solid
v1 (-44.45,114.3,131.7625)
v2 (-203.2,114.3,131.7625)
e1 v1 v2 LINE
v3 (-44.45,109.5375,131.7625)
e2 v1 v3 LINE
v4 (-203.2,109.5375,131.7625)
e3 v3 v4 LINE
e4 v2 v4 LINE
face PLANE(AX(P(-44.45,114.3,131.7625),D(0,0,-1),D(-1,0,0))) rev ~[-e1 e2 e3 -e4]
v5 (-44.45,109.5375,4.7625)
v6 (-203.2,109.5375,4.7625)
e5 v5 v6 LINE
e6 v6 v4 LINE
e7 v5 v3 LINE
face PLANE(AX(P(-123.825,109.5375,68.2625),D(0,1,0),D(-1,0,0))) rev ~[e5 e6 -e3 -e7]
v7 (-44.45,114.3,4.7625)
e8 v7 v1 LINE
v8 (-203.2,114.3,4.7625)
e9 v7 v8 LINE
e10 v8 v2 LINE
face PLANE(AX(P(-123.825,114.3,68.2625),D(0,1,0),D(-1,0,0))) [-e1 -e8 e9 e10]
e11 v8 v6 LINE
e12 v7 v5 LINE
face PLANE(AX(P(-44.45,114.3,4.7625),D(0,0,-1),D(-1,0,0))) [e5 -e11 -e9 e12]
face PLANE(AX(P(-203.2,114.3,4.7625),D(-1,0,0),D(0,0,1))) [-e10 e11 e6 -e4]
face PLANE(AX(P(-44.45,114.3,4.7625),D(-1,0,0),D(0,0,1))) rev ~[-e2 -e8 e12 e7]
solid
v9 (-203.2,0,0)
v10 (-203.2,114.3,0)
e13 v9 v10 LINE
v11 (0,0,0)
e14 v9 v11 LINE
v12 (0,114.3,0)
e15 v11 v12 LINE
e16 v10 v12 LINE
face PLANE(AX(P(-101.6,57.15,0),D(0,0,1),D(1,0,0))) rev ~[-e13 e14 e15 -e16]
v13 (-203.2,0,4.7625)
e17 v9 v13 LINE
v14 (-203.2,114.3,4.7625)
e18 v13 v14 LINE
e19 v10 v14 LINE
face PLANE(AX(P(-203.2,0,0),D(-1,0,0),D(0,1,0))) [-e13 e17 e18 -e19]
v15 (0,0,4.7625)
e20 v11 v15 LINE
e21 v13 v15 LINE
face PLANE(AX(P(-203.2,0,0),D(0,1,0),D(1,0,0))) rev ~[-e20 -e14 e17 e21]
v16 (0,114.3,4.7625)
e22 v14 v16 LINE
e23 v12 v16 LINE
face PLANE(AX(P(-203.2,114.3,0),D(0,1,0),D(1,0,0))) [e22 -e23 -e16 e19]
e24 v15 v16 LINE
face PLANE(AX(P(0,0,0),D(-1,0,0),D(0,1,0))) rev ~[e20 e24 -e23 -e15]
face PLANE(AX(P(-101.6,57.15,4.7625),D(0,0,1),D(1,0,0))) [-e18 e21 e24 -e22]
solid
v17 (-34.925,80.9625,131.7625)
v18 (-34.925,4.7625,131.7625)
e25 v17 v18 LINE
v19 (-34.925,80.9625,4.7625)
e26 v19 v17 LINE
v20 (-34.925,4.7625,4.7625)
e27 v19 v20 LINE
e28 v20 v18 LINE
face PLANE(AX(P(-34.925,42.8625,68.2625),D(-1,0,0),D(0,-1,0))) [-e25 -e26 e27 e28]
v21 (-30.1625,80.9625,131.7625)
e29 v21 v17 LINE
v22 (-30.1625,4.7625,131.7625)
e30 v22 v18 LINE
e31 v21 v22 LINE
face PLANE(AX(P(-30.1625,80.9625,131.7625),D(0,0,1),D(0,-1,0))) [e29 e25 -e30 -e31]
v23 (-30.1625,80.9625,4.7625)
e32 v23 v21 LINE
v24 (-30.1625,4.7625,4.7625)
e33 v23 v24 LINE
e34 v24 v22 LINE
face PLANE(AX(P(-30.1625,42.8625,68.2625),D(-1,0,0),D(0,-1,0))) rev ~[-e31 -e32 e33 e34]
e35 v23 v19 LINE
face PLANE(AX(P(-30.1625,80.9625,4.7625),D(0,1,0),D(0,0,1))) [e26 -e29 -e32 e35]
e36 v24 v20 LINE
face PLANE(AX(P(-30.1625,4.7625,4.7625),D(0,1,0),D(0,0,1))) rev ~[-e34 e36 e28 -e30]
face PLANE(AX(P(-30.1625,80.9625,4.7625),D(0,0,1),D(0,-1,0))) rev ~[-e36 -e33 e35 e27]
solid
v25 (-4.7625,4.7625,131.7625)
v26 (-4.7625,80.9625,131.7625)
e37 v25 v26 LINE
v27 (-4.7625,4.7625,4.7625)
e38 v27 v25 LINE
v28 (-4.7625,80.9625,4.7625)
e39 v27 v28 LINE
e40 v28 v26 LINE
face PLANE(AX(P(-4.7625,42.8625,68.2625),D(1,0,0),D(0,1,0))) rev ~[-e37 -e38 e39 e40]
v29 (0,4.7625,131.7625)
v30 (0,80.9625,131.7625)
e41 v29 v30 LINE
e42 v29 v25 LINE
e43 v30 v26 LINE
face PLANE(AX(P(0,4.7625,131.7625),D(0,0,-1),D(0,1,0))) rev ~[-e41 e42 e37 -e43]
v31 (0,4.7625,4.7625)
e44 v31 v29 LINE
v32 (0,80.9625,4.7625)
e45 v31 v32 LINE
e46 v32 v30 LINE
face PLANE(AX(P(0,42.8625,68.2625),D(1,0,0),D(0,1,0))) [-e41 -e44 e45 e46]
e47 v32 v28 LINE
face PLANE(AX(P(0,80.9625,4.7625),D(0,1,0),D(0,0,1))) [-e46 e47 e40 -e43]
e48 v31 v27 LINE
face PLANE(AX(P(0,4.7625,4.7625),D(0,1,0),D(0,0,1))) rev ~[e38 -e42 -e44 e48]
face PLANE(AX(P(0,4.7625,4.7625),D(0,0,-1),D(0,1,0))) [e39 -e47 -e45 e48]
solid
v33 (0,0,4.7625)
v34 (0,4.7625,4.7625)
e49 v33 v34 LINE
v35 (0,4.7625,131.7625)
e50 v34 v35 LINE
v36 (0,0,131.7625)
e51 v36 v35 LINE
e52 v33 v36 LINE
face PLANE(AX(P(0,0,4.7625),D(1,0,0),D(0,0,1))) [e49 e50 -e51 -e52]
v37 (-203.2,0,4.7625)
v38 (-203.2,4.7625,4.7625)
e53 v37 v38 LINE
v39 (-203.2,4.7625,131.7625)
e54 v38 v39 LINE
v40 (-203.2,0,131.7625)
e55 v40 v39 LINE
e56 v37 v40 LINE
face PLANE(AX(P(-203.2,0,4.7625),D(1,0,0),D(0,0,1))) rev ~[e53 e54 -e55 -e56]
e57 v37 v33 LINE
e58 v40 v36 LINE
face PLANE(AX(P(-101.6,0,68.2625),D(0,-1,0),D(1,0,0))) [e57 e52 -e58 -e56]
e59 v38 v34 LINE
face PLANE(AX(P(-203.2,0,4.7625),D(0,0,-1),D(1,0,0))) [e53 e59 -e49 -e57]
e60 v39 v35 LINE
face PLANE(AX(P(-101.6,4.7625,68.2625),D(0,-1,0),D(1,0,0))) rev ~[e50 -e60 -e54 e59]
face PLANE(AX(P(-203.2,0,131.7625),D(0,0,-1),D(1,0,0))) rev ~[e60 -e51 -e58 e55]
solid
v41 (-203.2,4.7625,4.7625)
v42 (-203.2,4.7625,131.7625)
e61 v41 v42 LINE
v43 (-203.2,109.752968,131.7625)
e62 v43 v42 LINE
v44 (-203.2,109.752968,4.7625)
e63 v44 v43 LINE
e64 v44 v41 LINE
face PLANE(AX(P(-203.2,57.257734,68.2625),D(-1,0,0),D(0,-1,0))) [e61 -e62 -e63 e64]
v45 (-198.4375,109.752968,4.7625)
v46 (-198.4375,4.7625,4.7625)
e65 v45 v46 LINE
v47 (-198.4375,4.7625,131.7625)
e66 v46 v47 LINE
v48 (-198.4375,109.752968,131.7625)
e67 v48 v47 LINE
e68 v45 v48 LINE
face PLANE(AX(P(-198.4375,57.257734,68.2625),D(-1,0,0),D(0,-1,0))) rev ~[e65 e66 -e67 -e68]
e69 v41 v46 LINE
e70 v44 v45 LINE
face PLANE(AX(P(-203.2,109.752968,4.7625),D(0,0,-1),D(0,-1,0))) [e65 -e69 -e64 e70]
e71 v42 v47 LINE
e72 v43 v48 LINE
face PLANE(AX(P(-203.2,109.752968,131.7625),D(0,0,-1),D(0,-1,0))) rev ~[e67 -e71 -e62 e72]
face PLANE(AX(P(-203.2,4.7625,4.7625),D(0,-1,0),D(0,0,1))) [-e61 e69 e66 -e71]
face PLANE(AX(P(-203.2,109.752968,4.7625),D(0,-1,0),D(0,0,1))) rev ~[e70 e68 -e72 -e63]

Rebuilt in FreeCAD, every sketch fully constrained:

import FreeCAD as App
import Part
import Sketcher
Q = App.Units.Quantity

doc = App.newDocument("Part")
params = doc.addObject("Spreadsheet::Sheet", "Params")
for row, (alias, value) in enumerate([
    ("sketch1_width", "8 in"),
    ("sketch1_height", "4.5 in"),
    ("pad1_length", "0.1875 in"),
    ("sketch2_width", "8 in"),
    ("sketch2_height", "5 in"),
    ("pad2_length", "0.1875 in"),
    ("sketch3_height", "5 in"),
    ("pad3_length", "0.1875 in"),
    ("sketch4_height", "5 in"),
    ("sketch4_width", "6.25 in"),
    ("pad4_length", "0.1875 in"),
    ("sketch5_width", "3 in"),
    ("sketch5_height", "5 in"),
    ("pad5_length", "0.1875 in"),
    ("sketch6_width", "3 in"),
    ("sketch6_height", "5 in"),
    ("pad6_length", "0.1875 in"),
], start=1):
    params.set(f"A{row}", alias)
    params.set(f"B{row}", "=" + value)
    params.setAlias(f"B{row}", alias)

body = doc.addObject("PartDesign::Body", "Body")

sketch1 = body.newObject("Sketcher::SketchObject", "Sketch")
sketch1.AttachmentSupport = (doc.getObject("XY_Plane"), [""])
sketch1.MapMode = "FlatFace"
sketch1.addGeometry([
    Part.LineSegment(App.Vector(-203.2, 114.3, 0), App.Vector(-203.2, 0, 0)),
    Part.LineSegment(App.Vector(-203.2, 0, 0), App.Vector(0, 0, 0)),
    Part.LineSegment(App.Vector(0, 0, 0), App.Vector(0, 114.3, 0)),
    Part.LineSegment(App.Vector(0, 114.3, 0), App.Vector(-203.2, 114.3, 0)),
], False)
sketch1.addConstraint([
    Sketcher.Constraint("Coincident", 0, 2, 1, 1),
    Sketcher.Constraint("Coincident", 1, 2, 2, 1),
    Sketcher.Constraint("Coincident", 2, 2, 3, 1),
    Sketcher.Constraint("Coincident", 3, 2, 0, 1),
    Sketcher.Constraint("Vertical", 0),
    Sketcher.Constraint("Horizontal", 1),
    Sketcher.Constraint("Vertical", 2),
    Sketcher.Constraint("Horizontal", 3),
    Sketcher.Constraint("Coincident", 1, 2, -1, 1),
    Sketcher.Constraint("DistanceX", 1, 1, 1, 2, Q("8 in")),
    Sketcher.Constraint("DistanceY", 0, 2, 0, 1, Q("4.5 in")),
])
sketch1.setExpression("Constraints[9]", "Params.sketch1_width")
sketch1.setExpression("Constraints[10]", "Params.sketch1_height")
pad1 = body.newObject("PartDesign::Pad", "Pad")
pad1.Profile = sketch1
pad1.setExpression("Length", "Params.pad1_length")
body2 = doc.addObject("PartDesign::Body", "Body001")

sketch2 = body2.newObject("Sketcher::SketchObject", "Sketch001")
sketch2.AttachmentSupport = (doc.getObject("XZ_Plane001"), [""])
sketch2.MapMode = "FlatFace"
sketch2.addGeometry([
    Part.LineSegment(App.Vector(-203.2, 131.7625, 0), App.Vector(-203.2, 4.7625, 0)),
    Part.LineSegment(App.Vector(-203.2, 4.7625, 0), App.Vector(0, 4.7625, 0)),
    Part.LineSegment(App.Vector(0, 4.7625, 0), App.Vector(0, 131.7625, 0)),
    Part.LineSegment(App.Vector(0, 131.7625, 0), App.Vector(-203.2, 131.7625, 0)),
], False)
sketch2.addConstraint([
    Sketcher.Constraint("Coincident", 0, 2, 1, 1),
    Sketcher.Constraint("Coincident", 1, 2, 2, 1),
    Sketcher.Constraint("Coincident", 2, 2, 3, 1),
    Sketcher.Constraint("Coincident", 3, 2, 0, 1),
    Sketcher.Constraint("Vertical", 0),
    Sketcher.Constraint("Horizontal", 1),
    Sketcher.Constraint("Vertical", 2),
    Sketcher.Constraint("Horizontal", 3),
    Sketcher.Constraint("PointOnObject", 1, 2, -2),
    Sketcher.Constraint("DistanceX", 1, 1, 1, 2, Q("8 in")),
    Sketcher.Constraint("DistanceY", 0, 2, 0, 1, Q("5 in")),
    Sketcher.Constraint("DistanceY", -1, 1, 0, 2, Q("0.1875 in")),
])
sketch2.setExpression("Constraints[9]", "Params.sketch2_width")
sketch2.setExpression("Constraints[10]", "Params.sketch2_height")
pad2 = body2.newObject("PartDesign::Pad", "Pad001")
pad2.Profile = sketch2
pad2.setExpression("Length", "Params.pad2_length")
pad2.Reversed = True
body3 = doc.addObject("PartDesign::Body", "Body002")

sketch3 = body3.newObject("Sketcher::SketchObject", "Sketch002")
sketch3.AttachmentSupport = (doc.getObject("YZ_Plane002"), [""])
sketch3.MapMode = "FlatFace"
sketch3.AttachmentOffset = App.Placement(App.Vector(0, 0, -8 * 25.4), App.Rotation())
sketch3.addGeometry([
    Part.LineSegment(App.Vector(109.752968, 131.7625, 0), App.Vector(109.752968, 4.7625, 0)),
    Part.LineSegment(App.Vector(109.752968, 4.7625, 0), App.Vector(4.7625, 4.7625, 0)),
    Part.LineSegment(App.Vector(4.7625, 4.7625, 0), App.Vector(4.7625, 131.7625, 0)),
    Part.LineSegment(App.Vector(4.7625, 131.7625, 0), App.Vector(109.752968, 131.7625, 0)),
], False)
sketch3.addConstraint([
    Sketcher.Constraint("Coincident", 0, 2, 1, 1),
    Sketcher.Constraint("Coincident", 1, 2, 2, 1),
    Sketcher.Constraint("Coincident", 2, 2, 3, 1),
    Sketcher.Constraint("Coincident", 3, 2, 0, 1),
    Sketcher.Constraint("Vertical", 0),
    Sketcher.Constraint("Horizontal", 1),
    Sketcher.Constraint("Vertical", 2),
    Sketcher.Constraint("Horizontal", 3),
    Sketcher.Constraint("DistanceY", 0, 2, 0, 1, Q("5 in")),
    Sketcher.Constraint("DistanceY", -1, 1, 0, 2, Q("0.1875 in")),
    Sketcher.Constraint("DistanceX", -1, 1, 1, 2, Q("0.1875 in")),
    Sketcher.Constraint("DistanceX", 1, 2, 1, 1, Q("104.990468 mm")),
])
sketch3.setExpression("Constraints[8]", "Params.sketch3_height")
pad3 = body3.newObject("PartDesign::Pad", "Pad002")
pad3.Profile = sketch3
pad3.setExpression("Length", "Params.pad3_length")
body4 = doc.addObject("PartDesign::Body", "Body003")

sketch4 = body4.newObject("Sketcher::SketchObject", "Sketch003")
sketch4.AttachmentSupport = (doc.getObject("XZ_Plane003"), [""])
sketch4.MapMode = "FlatFace"
sketch4.AttachmentOffset = App.Placement(App.Vector(0, 0, -4.5 * 25.4), App.Rotation())
sketch4.addGeometry([
    Part.LineSegment(App.Vector(-44.45, 131.7625, 0), App.Vector(-44.45, 4.7625, 0)),
    Part.LineSegment(App.Vector(-44.45, 4.7625, 0), App.Vector(-203.2, 4.7625, 0)),
    Part.LineSegment(App.Vector(-203.2, 4.7625, 0), App.Vector(-203.2, 131.7625, 0)),
    Part.LineSegment(App.Vector(-203.2, 131.7625, 0), App.Vector(-44.45, 131.7625, 0)),
], False)
sketch4.addConstraint([
    Sketcher.Constraint("Coincident", 0, 2, 1, 1),
    Sketcher.Constraint("Coincident", 1, 2, 2, 1),
    Sketcher.Constraint("Coincident", 2, 2, 3, 1),
    Sketcher.Constraint("Coincident", 3, 2, 0, 1),
    Sketcher.Constraint("Vertical", 0),
    Sketcher.Constraint("Horizontal", 1),
    Sketcher.Constraint("Vertical", 2),
    Sketcher.Constraint("Horizontal", 3),
    Sketcher.Constraint("DistanceY", 0, 2, 0, 1, Q("5 in")),
    Sketcher.Constraint("DistanceX", 1, 2, -1, 1, Q("8 in")),
    Sketcher.Constraint("DistanceX", 1, 2, 1, 1, Q("6.25 in")),
    Sketcher.Constraint("DistanceY", -1, 1, 0, 2, Q("0.1875 in")),
])
sketch4.setExpression("Constraints[8]", "Params.sketch4_height")
sketch4.setExpression("Constraints[10]", "Params.sketch4_width")
pad4 = body4.newObject("PartDesign::Pad", "Pad003")
pad4.Profile = sketch4
pad4.setExpression("Length", "Params.pad4_length")
body5 = doc.addObject("PartDesign::Body", "Body004")

sketch5 = body5.newObject("Sketcher::SketchObject", "Sketch004")
sketch5.AttachmentSupport = (doc.getObject("YZ_Plane004"), [""])
sketch5.MapMode = "FlatFace"
sketch5.addGeometry([
    Part.LineSegment(App.Vector(4.7625, 131.7625, 0), App.Vector(4.7625, 4.7625, 0)),
    Part.LineSegment(App.Vector(4.7625, 4.7625, 0), App.Vector(80.9625, 4.7625, 0)),
    Part.LineSegment(App.Vector(80.9625, 4.7625, 0), App.Vector(80.9625, 131.7625, 0)),
    Part.LineSegment(App.Vector(80.9625, 131.7625, 0), App.Vector(4.7625, 131.7625, 0)),
], False)
sketch5.addConstraint([
    Sketcher.Constraint("Coincident", 0, 2, 1, 1),
    Sketcher.Constraint("Coincident", 1, 2, 2, 1),
    Sketcher.Constraint("Coincident", 2, 2, 3, 1),
    Sketcher.Constraint("Coincident", 3, 2, 0, 1),
    Sketcher.Constraint("Vertical", 0),
    Sketcher.Constraint("Horizontal", 1),
    Sketcher.Constraint("Vertical", 2),
    Sketcher.Constraint("Horizontal", 3),
    Sketcher.Constraint("DistanceX", 1, 1, 1, 2, Q("3 in")),
    Sketcher.Constraint("DistanceY", 0, 2, 0, 1, Q("5 in")),
    Sketcher.Constraint("DistanceX", -1, 1, 0, 2, Q("0.1875 in")),
    Sketcher.Constraint("DistanceY", -1, 1, 0, 2, Q("0.1875 in")),
])
sketch5.setExpression("Constraints[8]", "Params.sketch5_width")
sketch5.setExpression("Constraints[9]", "Params.sketch5_height")
pad5 = body5.newObject("PartDesign::Pad", "Pad004")
pad5.Profile = sketch5
pad5.setExpression("Length", "Params.pad5_length")
pad5.Reversed = True
body6 = doc.addObject("PartDesign::Body", "Body005")

sketch6 = body6.newObject("Sketcher::SketchObject", "Sketch005")
sketch6.AttachmentSupport = (doc.getObject("YZ_Plane005"), [""])
sketch6.MapMode = "FlatFace"
sketch6.AttachmentOffset = App.Placement(App.Vector(0, 0, -1.1875 * 25.4), App.Rotation())
sketch6.addGeometry([
    Part.LineSegment(App.Vector(80.9625, 131.7625, 0), App.Vector(80.9625, 4.7625, 0)),
    Part.LineSegment(App.Vector(80.9625, 4.7625, 0), App.Vector(4.7625, 4.7625, 0)),
    Part.LineSegment(App.Vector(4.7625, 4.7625, 0), App.Vector(4.7625, 131.7625, 0)),
    Part.LineSegment(App.Vector(4.7625, 131.7625, 0), App.Vector(80.9625, 131.7625, 0)),
], False)
sketch6.addConstraint([
    Sketcher.Constraint("Coincident", 0, 2, 1, 1),
    Sketcher.Constraint("Coincident", 1, 2, 2, 1),
    Sketcher.Constraint("Coincident", 2, 2, 3, 1),
    Sketcher.Constraint("Coincident", 3, 2, 0, 1),
    Sketcher.Constraint("Vertical", 0),
    Sketcher.Constraint("Horizontal", 1),
    Sketcher.Constraint("Vertical", 2),
    Sketcher.Constraint("Horizontal", 3),
    Sketcher.Constraint("DistanceX", 1, 2, 1, 1, Q("3 in")),
    Sketcher.Constraint("DistanceY", 0, 2, 0, 1, Q("5 in")),
    Sketcher.Constraint("DistanceX", -1, 1, 0, 2, Q("3.1875 in")),
    Sketcher.Constraint("DistanceY", -1, 1, 0, 2, Q("0.1875 in")),
])
sketch6.setExpression("Constraints[8]", "Params.sketch6_width")
sketch6.setExpression("Constraints[9]", "Params.sketch6_height")
pad6 = body6.newObject("PartDesign::Pad", "Pad005")
pad6.Profile = sketch6
pad6.setExpression("Length", "Params.pad6_length")
pad6.Reversed = True

doc.recompute()
